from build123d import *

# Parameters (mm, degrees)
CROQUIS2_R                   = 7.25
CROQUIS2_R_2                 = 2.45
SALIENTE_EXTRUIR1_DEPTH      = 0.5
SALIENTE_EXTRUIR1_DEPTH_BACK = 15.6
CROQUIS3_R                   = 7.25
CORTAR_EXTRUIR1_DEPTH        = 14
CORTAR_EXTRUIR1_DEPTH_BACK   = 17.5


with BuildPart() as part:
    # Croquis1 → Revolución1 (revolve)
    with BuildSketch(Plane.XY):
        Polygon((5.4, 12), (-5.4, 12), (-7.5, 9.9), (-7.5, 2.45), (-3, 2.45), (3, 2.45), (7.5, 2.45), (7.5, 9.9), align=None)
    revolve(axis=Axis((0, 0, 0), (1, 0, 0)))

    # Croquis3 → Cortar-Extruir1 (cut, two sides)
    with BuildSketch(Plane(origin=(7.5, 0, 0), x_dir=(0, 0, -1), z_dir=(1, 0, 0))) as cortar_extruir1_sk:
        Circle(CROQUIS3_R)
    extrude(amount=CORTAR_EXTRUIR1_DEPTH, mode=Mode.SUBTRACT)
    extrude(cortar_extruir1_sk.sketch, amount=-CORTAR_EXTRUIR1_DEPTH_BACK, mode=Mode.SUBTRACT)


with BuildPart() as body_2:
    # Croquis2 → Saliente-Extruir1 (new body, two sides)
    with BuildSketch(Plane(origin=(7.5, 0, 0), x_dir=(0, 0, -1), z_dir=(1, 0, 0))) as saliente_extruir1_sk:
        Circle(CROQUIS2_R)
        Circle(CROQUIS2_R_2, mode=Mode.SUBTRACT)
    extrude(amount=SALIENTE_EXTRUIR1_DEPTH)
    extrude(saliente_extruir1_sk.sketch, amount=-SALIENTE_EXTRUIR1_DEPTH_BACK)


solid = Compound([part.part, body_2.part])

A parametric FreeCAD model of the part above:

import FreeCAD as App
import Part
import Sketcher

V = App.Vector


def add_polygon(sketch, points):
    """Adds a closed chain of lines whose ends are joined by coincident constraints."""
    first, n = sketch.GeometryCount, len(points)
    for a, b in zip(points, points[1:] + points[:1]):
        sketch.addGeometry(Part.LineSegment(App.Vector(*a, 0), App.Vector(*b, 0)), False)
    for i in range(n):
        sketch.addConstraint(Sketcher.Constraint("Coincident", first + i, 2, first + (i + 1) % n, 1))

doc = App.newDocument("Part")
body = doc.addObject("PartDesign::Body", "Body")

sketch1 = body.newObject("Sketcher::SketchObject", "Sketch")
sketch1.AttachmentSupport = (doc.getObject("XY_Plane"), [""])
sketch1.MapMode = "FlatFace"
add_polygon(sketch1, [(5.4, 12), (-5.4, 12), (-7.5, 9.9), (-7.5, 2.5), (7.5, 2.5), (7.5, 9.9)])
sketch1.addConstraint(Sketcher.Constraint("Horizontal", 0))
sketch1.addConstraint(Sketcher.Constraint("Vertical", 2))
sketch1.addConstraint(Sketcher.Constraint("Horizontal", 3))
sketch1.addConstraint(Sketcher.Constraint("Vertical", 4))
sketch1.addConstraint(Sketcher.Constraint("Symmetric", 1, 2, 4, 2, -2))
sketch1.addConstraint(Sketcher.Constraint("Perpendicular", 1, 5))
sketch1.addConstraint(Sketcher.Constraint("Equal", 1, 5))
sketch1.addConstraint(Sketcher.Constraint("DistanceX", 3, 1, 3, 2, 15.0))
sketch1.addConstraint(Sketcher.Constraint("DistanceX", 0, 2, 0, 1, 10.8))
sketch1.addConstraint(Sketcher.Constraint("DistanceY", -1, 1, 0, 2, 12.0))
sketch1.addConstraint(Sketcher.Constraint("DistanceY", 2, 2, 2, 1, 7.45))
revolution = body.newObject("PartDesign::Revolution", "Revolution")
revolution.Profile = sketch1
revolution.ReferenceAxis = (sketch1, ["H_Axis"])
revolution.Angle = 360

sketch2 = body.newObject("Sketcher::SketchObject", "Sketch001")
sketch2.AttachmentSupport = (doc.getObject("YZ_Plane"), [""])
sketch2.MapMode = "FlatFace"
sketch2.AttachmentOffset = App.Placement(V(0, 0, 7.5), App.Rotation())
sketch2.addGeometry(Part.Circle(V(0, 0, 0), V(0, 0, 1), 7), False)
sketch2.addConstraint(Sketcher.Constraint("Coincident", 0, 3, -1, 1))
sketch2.addConstraint(Sketcher.Constraint("Diameter", 0, 14.5))
pocket1 = body.newObject("PartDesign::Pocket", "Pocket")
pocket1.Profile = sketch2
pocket1.Type = "ThroughAll"
pocket1.Midplane = True
body2 = doc.addObject("PartDesign::Body", "Body001")

sketch3 = body2.newObject("Sketcher::SketchObject", "Sketch002")
sketch3.AttachmentSupport = (doc.getObject("YZ_Plane001"), [""])
sketch3.MapMode = "FlatFace"
sketch3.AttachmentOffset = App.Placement(V(0, 0, 7.5), App.Rotation())
sketch3.addGeometry(Part.Circle(V(0, 0, 0), V(0, 0, 1), 7.2), False)
sketch3.addGeometry(Part.Circle(V(0, 0, 0), V(0, 0, 1), 2.5), False)
sketch3.addConstraint(Sketcher.Constraint("Coincident", 0, 3, -1, 1))
sketch3.addConstraint(Sketcher.Constraint("Coincident", 1, 3, -1, 1))
sketch3.addConstraint(Sketcher.Constraint("Diameter", 0, 14.5))
sketch3.addConstraint(Sketcher.Constraint("Diameter", 1, 4.9))
pad1 = body2.newObject("PartDesign::Pad", "Pad")
pad1.Profile = sketch3
pad1.Type = "TwoLengths"
pad1.Length = 0.5
pad1.Length2 = 15.6

doc.recompute()
